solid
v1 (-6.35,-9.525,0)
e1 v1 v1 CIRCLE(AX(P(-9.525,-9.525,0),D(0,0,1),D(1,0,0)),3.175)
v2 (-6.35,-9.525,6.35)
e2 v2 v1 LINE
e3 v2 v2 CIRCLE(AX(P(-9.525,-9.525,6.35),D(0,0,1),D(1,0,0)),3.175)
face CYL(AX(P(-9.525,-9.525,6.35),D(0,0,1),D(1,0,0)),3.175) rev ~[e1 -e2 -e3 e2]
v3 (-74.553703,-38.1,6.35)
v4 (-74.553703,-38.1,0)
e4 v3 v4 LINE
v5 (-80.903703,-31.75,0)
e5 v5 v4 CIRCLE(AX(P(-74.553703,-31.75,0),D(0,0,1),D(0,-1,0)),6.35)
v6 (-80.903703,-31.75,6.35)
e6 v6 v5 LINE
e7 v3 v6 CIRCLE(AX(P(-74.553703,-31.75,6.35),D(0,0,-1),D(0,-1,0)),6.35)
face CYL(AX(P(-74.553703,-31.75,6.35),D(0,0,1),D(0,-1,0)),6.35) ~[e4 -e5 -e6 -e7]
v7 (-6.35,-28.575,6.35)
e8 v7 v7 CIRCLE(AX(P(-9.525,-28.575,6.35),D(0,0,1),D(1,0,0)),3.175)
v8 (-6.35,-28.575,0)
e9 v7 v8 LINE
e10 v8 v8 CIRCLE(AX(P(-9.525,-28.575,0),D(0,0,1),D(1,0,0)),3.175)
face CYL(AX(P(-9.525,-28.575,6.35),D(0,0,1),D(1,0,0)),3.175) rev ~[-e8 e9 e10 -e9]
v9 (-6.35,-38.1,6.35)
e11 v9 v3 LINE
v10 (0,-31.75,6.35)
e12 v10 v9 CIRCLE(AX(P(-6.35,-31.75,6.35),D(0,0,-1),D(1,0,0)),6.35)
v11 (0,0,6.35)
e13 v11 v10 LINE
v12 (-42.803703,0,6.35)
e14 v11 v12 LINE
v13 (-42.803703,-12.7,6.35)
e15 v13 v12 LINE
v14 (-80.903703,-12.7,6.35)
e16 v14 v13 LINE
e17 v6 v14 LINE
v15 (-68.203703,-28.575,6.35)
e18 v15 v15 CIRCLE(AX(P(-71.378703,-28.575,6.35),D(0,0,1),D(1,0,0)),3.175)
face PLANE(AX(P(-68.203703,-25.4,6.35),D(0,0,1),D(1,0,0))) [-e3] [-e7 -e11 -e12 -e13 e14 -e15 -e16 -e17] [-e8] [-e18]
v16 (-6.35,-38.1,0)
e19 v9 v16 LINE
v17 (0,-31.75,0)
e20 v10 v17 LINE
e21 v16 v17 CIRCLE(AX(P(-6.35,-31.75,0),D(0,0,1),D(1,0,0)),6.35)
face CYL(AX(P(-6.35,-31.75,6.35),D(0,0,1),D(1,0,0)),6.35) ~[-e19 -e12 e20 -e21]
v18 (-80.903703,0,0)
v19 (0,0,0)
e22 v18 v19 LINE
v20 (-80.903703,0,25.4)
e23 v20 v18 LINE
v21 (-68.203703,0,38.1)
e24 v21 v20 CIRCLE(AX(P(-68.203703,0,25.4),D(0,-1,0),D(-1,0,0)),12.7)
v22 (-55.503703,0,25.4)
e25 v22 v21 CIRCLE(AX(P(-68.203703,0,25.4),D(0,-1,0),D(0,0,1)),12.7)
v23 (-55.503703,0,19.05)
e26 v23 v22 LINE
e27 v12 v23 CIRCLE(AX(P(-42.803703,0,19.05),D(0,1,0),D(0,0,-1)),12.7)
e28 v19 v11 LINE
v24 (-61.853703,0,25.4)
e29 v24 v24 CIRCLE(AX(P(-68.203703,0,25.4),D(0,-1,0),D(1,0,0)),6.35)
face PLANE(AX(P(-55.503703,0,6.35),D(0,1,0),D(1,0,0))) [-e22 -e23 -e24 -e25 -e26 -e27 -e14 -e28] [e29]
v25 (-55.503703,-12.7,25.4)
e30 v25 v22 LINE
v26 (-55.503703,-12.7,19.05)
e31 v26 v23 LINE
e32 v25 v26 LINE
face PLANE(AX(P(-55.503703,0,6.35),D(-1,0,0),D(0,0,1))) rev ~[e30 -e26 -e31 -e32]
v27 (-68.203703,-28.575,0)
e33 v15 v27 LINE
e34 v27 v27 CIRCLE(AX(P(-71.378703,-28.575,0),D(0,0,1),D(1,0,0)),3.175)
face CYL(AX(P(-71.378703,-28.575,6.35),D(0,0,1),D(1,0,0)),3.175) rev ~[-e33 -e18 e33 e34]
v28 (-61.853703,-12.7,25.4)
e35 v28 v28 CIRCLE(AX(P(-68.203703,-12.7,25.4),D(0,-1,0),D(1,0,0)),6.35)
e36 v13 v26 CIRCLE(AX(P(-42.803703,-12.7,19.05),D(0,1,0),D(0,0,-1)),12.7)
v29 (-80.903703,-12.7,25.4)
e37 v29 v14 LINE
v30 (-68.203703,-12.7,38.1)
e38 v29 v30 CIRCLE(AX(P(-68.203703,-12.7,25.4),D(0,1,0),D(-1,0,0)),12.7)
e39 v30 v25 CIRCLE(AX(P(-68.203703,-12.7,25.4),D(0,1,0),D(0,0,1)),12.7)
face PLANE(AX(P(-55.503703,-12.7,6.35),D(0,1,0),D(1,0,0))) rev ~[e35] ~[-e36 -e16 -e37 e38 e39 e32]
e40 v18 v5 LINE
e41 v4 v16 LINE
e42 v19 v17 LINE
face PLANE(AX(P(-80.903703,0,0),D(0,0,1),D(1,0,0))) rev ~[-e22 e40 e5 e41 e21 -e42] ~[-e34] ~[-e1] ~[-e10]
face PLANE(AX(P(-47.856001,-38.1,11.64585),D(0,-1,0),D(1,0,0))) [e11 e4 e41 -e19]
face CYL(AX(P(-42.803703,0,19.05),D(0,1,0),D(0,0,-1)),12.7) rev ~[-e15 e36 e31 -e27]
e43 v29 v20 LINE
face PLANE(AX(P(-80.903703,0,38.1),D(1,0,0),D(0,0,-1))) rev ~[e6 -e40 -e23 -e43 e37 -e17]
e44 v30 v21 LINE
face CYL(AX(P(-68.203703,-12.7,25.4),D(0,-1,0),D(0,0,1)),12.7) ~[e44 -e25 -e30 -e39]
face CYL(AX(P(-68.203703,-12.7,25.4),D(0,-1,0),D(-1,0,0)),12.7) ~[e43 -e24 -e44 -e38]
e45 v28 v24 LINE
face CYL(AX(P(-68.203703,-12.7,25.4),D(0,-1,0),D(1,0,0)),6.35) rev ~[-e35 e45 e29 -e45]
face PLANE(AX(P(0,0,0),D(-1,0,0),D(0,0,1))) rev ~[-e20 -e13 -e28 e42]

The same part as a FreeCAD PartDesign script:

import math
import FreeCAD as App
import Part
import Sketcher
Q = App.Units.Quantity

doc = App.newDocument("Part")
body = doc.addObject("PartDesign::Body", "Body")

# Sketch on XZ plane
sketch1 = body.newObject("Sketcher::SketchObject", "Sketch")
sketch1.AttachmentSupport = (doc.getObject("XZ_Plane"), [""])
sketch1.MapMode = "FlatFace"
sketch1.addGeometry(Part.LineSegment(App.Vector(-81, 0, 0), App.Vector(0, 0, 0)), False)
sketch1.addGeometry(Part.LineSegment(App.Vector(0, 0, 0), App.Vector(0, 6, 0)), False)
sketch1.addGeometry(Part.LineSegment(App.Vector(0, 6, 0), App.Vector(-56, 6, 0)), False)
sketch1.addGeometry(Part.LineSegment(App.Vector(-56, 6, 0), App.Vector(-56, 38, 0)), False)
sketch1.addGeometry(Part.LineSegment(App.Vector(-56, 38, 0), App.Vector(-81, 38, 0)), False)
sketch1.addGeometry(Part.LineSegment(App.Vector(-81, 38, 0), App.Vector(-81, 0, 0)), False)
sketch1.addConstraint(Sketcher.Constraint("Coincident", 0, 2, 1, 1))
sketch1.addConstraint(Sketcher.Constraint("Coincident", 1, 2, 2, 1))
sketch1.addConstraint(Sketcher.Constraint("Coincident", 2, 2, 3, 1))
sketch1.addConstraint(Sketcher.Constraint("Coincident", 3, 2, 4, 1))
sketch1.addConstraint(Sketcher.Constraint("Coincident", 4, 2, 5, 1))
sketch1.addConstraint(Sketcher.Constraint("Coincident", 5, 2, 0, 1))
sketch1.addConstraint(Sketcher.Constraint("Horizontal", 0))
sketch1.addConstraint(Sketcher.Constraint("Vertical", 1))
sketch1.addConstraint(Sketcher.Constraint("Horizontal", 2))
sketch1.addConstraint(Sketcher.Constraint("Vertical", 3))
sketch1.addConstraint(Sketcher.Constraint("Horizontal", 4))
sketch1.addConstraint(Sketcher.Constraint("Vertical", 5))
sketch1.addConstraint(Sketcher.Constraint("Coincident", 0, 2, -1, 1))
sketch1.addConstraint(Sketcher.Constraint("DistanceX", 4, 2, 4, 1, Q("1 in")))
sketch1.addConstraint(Sketcher.Constraint("DistanceY", 5, 2, 5, 1, Q("1.5 in")))
sketch1.addConstraint(Sketcher.Constraint("DistanceY", 1, 1, 1, 2, Q("0.25 in")))
sketch1.addConstraint(Sketcher.Constraint("DistanceX", 0, 1, 0, 2, 80.903703))
pad1 = body.newObject("PartDesign::Pad", "Pad")
pad1.Profile = sketch1
pad1.Length = Q("1.5 in")

# Sketch on XY plane
sketch2 = body.newObject("Sketcher::SketchObject", "Sketch001")
sketch2.AttachmentSupport = (doc.getObject("XY_Plane"), [""])
sketch2.MapMode = "FlatFace"
sketch2.AttachmentOffset = App.Placement(App.Vector(0, 0, 1.5 * 25.4), App.Rotation())
sketch2.addGeometry(Part.LineSegment(App.Vector(-81, -13, 0), App.Vector(-81, -38, 0)), False)
sketch2.addGeometry(Part.LineSegment(App.Vector(-81, -38, 0), App.Vector(-56, -38, 0)), False)
sketch2.addGeometry(Part.LineSegment(App.Vector(-56, -38, 0), App.Vector(-56, -13, 0)), False)
sketch2.addGeometry(Part.LineSegment(App.Vector(-56, -13, 0), App.Vector(-81, -13, 0)), False)
sketch2.addConstraint(Sketcher.Constraint("Coincident", 0, 2, 1, 1))
sketch2.addConstraint(Sketcher.Constraint("Coincident", 1, 2, 2, 1))
sketch2.addConstraint(Sketcher.Constraint("Coincident", 2, 2, 3, 1))
sketch2.addConstraint(Sketcher.Constraint("Coincident", 3, 2, 0, 1))
sketch2.addConstraint(Sketcher.Constraint("Vertical", 0))
sketch2.addConstraint(Sketcher.Constraint("Horizontal", 1))
sketch2.addConstraint(Sketcher.Constraint("Vertical", 2))
sketch2.addConstraint(Sketcher.Constraint("Horizontal", 3))
sketch2.addConstraint(Sketcher.Constraint("Equal", 3, 0))
sketch2.addConstraint(Sketcher.Constraint("DistanceX", 1, 1, 1, 2, Q("1 in")))
sketch2.addConstraint(Sketcher.Constraint("DistanceY", 0, 2, -1, 1, Q("1.5 in")))
sketch2.addConstraint(Sketcher.Constraint("DistanceX", 0, 2, -1, 1, 80.903703))
pocket1 = body.newObject("PartDesign::Pocket", "Pocket")
pocket1.Profile = sketch2
pocket1.Length = Q("1.25 in")

# Sketch on XY plane
sketch3 = body.newObject("Sketcher::SketchObject", "Sketch002")
sketch3.AttachmentSupport = (doc.getObject("XY_Plane"), [""])
sketch3.MapMode = "FlatFace"
sketch3.AttachmentOffset = App.Placement(App.Vector(0, 0, 0.25 * 25.4), App.Rotation())
sketch3.addGeometry(Part.LineSegment(App.Vector(-56, 0, 0), App.Vector(-56, -13, 0)), False)
sketch3.addGeometry(Part.LineSegment(App.Vector(-56, -13, 0), App.Vector(-43, -13, 0)), False)
sketch3.addGeometry(Part.LineSegment(App.Vector(-43, -13, 0), App.Vector(-43, 0, 0)), False)
sketch3.addGeometry(Part.LineSegment(App.Vector(-43, 0, 0), App.Vector(-56, 0, 0)), False)
sketch3.addConstraint(Sketcher.Constraint("Coincident", 0, 2, 1, 1))
sketch3.addConstraint(Sketcher.Constraint("Coincident", 1, 2, 2, 1))
sketch3.addConstraint(Sketcher.Constraint("Coincident", 2, 2, 3, 1))
sketch3.addConstraint(Sketcher.Constraint("Coincident", 3, 2, 0, 1))
sketch3.addConstraint(Sketcher.Constraint("Vertical", 0))
sketch3.addConstraint(Sketcher.Constraint("Horizontal", 1))
sketch3.addConstraint(Sketcher.Constraint("Vertical", 2))
sketch3.addConstraint(Sketcher.Constraint("Horizontal", 3))
sketch3.addConstraint(Sketcher.Constraint("PointOnObject", 2, 2, -1))
sketch3.addConstraint(Sketcher.Constraint("Equal", 3, 0))
sketch3.addConstraint(Sketcher.Constraint("DistanceX", 1, 1, 1, 2, Q("0.5 in")))
sketch3.addConstraint(Sketcher.Constraint("DistanceX", 0, 2, -1, 1, 55.503703))
pad2 = body.newObject("PartDesign::Pad", "Pad001")
pad2.Profile = sketch3
pad2.Length = Q("0.5 in")

# Sketch on XZ plane
sketch4 = body.newObject("Sketcher::SketchObject", "Sketch003")
sketch4.AttachmentSupport = (doc.getObject("XZ_Plane"), [""])
sketch4.MapMode = "FlatFace"
sketch4.addGeometry(Part.ArcOfCircle(Part.Circle(App.Vector(-43, 19, 0), App.Vector(0, 0, 1), 13), math.radians(180), math.radians(270)), False)
sketch4.addGeometry(Part.LineSegment(App.Vector(-56, 19, 0), App.Vector(-43, 19, 0)), False)
sketch4.addGeometry(Part.LineSegment(App.Vector(-43, 19, 0), App.Vector(-43, 6, 0)), False)
sketch4.addConstraint(Sketcher.Constraint("Coincident", 0, 1, 1, 1))
sketch4.addConstraint(Sketcher.Constraint("Coincident", 1, 2, 2, 1))
sketch4.addConstraint(Sketcher.Constraint("Coincident", 2, 2, 0, 2))
sketch4.addConstraint(Sketcher.Constraint("Horizontal", 1))
sketch4.addConstraint(Sketcher.Constraint("Vertical", 2))
sketch4.addConstraint(Sketcher.Constraint("Coincident", 1, 2, 0, 3))
sketch4.addConstraint(Sketcher.Constraint("Radius", 0, Q("0.5 in")))
sketch4.addConstraint(Sketcher.Constraint("DistanceY", -1, 1, 0, 3, Q("0.75 in")))
sketch4.addConstraint(Sketcher.Constraint("DistanceX", 0, 3, -1, 1, 42.803703))
pocket2 = body.newObject("PartDesign::Pocket", "Pocket001")
pocket2.Profile = sketch4
pocket2.Length = Q("1 in")
pocket2.Reversed = True

# Sketch on XZ plane
sketch5 = body.newObject("Sketcher::SketchObject", "Sketch004")
sketch5.AttachmentSupport = (doc.getObject("XZ_Plane"), [""])
sketch5.MapMode = "FlatFace"
sketch5.AttachmentOffset = App.Placement(App.Vector(0, 0, 0.5 * 25.4), App.Rotation())
sketch5.addGeometry(Part.ArcOfCircle(Part.Circle(App.Vector(-68, 25, 0), App.Vector(0, 0, 1), 13), math.radians(90), math.radians(180)), False)
sketch5.addGeometry(Part.LineSegment(App.Vector(-68, 38, 0), App.Vector(-81, 38, 0)), False)
sketch5.addGeometry(Part.LineSegment(App.Vector(-81, 38, 0), App.Vector(-81, 25, 0)), False)
sketch5.addGeometry(Part.ArcOfCircle(Part.Circle(App.Vector(-68, 25, 0), App.Vector(0, 0, 1), 13), math.radians(0), math.radians(90)), False)
sketch5.addGeometry(Part.LineSegment(App.Vector(-56, 25, 0), App.Vector(-56, 38, 0)), False)
sketch5.addGeometry(Part.LineSegment(App.Vector(-56, 38, 0), App.Vector(-68, 38, 0)), False)
sketch5.addConstraint(Sketcher.Constraint("Tangent", 0, 1, 1, 1))
sketch5.addConstraint(Sketcher.Constraint("Coincident", 1, 2, 2, 1))
sketch5.addConstraint(Sketcher.Constraint("Tangent", 2, 2, 0, 2))
sketch5.addConstraint(Sketcher.Constraint("Tangent", 3, 1, 4, 1))
sketch5.addConstraint(Sketcher.Constraint("Coincident", 4, 2, 5, 1))
sketch5.addConstraint(Sketcher.Constraint("Tangent", 5, 2, 3, 2))
sketch5.addConstraint(Sketcher.Constraint("Horizontal", 1))
sketch5.addConstraint(Sketcher.Constraint("Vertical", 2))
sketch5.addConstraint(Sketcher.Constraint("Vertical", 4))
sketch5.addConstraint(Sketcher.Constraint("Horizontal", 5))
sketch5.addConstraint(Sketcher.Constraint("Coincident", 3, 3, 0, 3))
sketch5.addConstraint(Sketcher.Constraint("Equal", 0, 3))
sketch5.addConstraint(Sketcher.Constraint("Radius", 0, Q("0.5 in")))
sketch5.addConstraint(Sketcher.Constraint("DistanceY", -1, 1, 0, 3, Q("1 in")))
sketch5.addConstraint(Sketcher.Constraint("DistanceX", 0, 3, -1, 1, 68.203703))
pocket3 = body.newObject("PartDesign::Pocket", "Pocket002")
pocket3.Profile = sketch5
pocket3.Length = Q("1 in")

# Sketch on XZ plane
sketch6 = body.newObject("Sketcher::SketchObject", "Sketch005")
sketch6.AttachmentSupport = (doc.getObject("XZ_Plane"), [""])
sketch6.MapMode = "FlatFace"
sketch6.AttachmentOffset = App.Placement(App.Vector(0, 0, 0.5 * 25.4), App.Rotation())
sketch6.addGeometry(Part.Circle(App.Vector(-68, 25, 0), App.Vector(0, 0, 1), 6), False)
sketch6.addConstraint(Sketcher.Constraint("Diameter", 0, Q("0.5 in")))
sketch6.addConstraint(Sketcher.Constraint("DistanceY", -1, 1, 0, 3, Q("1 in")))
sketch6.addConstraint(Sketcher.Constraint("DistanceX", 0, 3, -1, 1, 68.203703))
pocket4 = body.newObject("PartDesign::Pocket", "Pocket003")
pocket4.Profile = sketch6
pocket4.Length = Q("1 in")

# Sketch on XY plane
sketch7 = body.newObject("Sketcher::SketchObject", "Sketch006")
sketch7.AttachmentSupport = (doc.getObject("XY_Plane"), [""])
sketch7.MapMode = "FlatFace"
sketch7.AttachmentOffset = App.Placement(App.Vector(0, 0, 0.25 * 25.4), App.Rotation())
sketch7.addGeometry(Part.Circle(App.Vector(-9.5, -9.5, 0), App.Vector(0, 0, 1), 3.2), False)
sketch7.addGeometry(Part.Circle(App.Vector(-9.5, -28.6, 0), App.Vector(0, 0, 1), 3.2), False)
sketch7.addGeometry(Part.Circle(App.Vector(-71.4, -28.6, 0), App.Vector(0, 0, 1), 3.2), False)
sketch7.addConstraint(Sketcher.Constraint("Equal", 0, 1))
sketch7.addConstraint(Sketcher.Constraint("Equal", 1, 2))
sketch7.addConstraint(Sketcher.Constraint("Horizontal", 1, 3, 2, 3))
sketch7.addConstraint(Sketcher.Constraint("Vertical", 0, 3, 1, 3))
sketch7.addConstraint(Sketcher.Constraint("Diameter", 0, Q("0.25 in")))
sketch7.addConstraint(Sketcher.Constraint("DistanceY", 1, 3, 0, 3, Q("0.75 in")))
sketch7.addConstraint(Sketcher.Constraint("DistanceX", 0, 3, -1, 1, Q("0.375 in")))
sketch7.addConstraint(Sketcher.Constraint("DistanceY", 0, 3, -1, 1, Q("0.375 in")))
sketch7.addConstraint(Sketcher.Constraint("DistanceX", 2, 3, -1, 1, 71.378703))
pocket5 = body.newObject("PartDesign::Pocket", "Pocket004")
pocket5.Profile = sketch7
pocket5.Length = Q("1 in")

# Sketch on XY plane
sketch8 = body.newObject("Sketcher::SketchObject", "Sketch007")
sketch8.AttachmentSupport = (doc.getObject("XY_Plane"), [""])
sketch8.MapMode = "FlatFace"
sketch8.AttachmentOffset = App.Placement(App.Vector(0, 0, 0.25 * 25.4), App.Rotation())
sketch8.addGeometry(Part.LineSegment(App.Vector(-81, -38, 0), App.Vector(-75, -38, 0)), False)
sketch8.addGeometry(Part.ArcOfCircle(Part.Circle(App.Vector(-75, -32, 0), App.Vector(0, 0, 1), 6), math.radians(180), math.radians(270)), False)
sketch8.addGeometry(Part.LineSegment(App.Vector(-81, -32, 0), App.Vector(-81, -38, 0)), False)
sketch8.addGeometry(Part.ArcOfCircle(Part.Circle(App.Vector(-6, -32, 0), App.Vector(0, 0, 1), 6), math.radians(-90), math.radians(0)), False)
sketch8.addGeometry(Part.LineSegment(App.Vector(-6, -38, 0), App.Vector(0, -38, 0)), False)
sketch8.addGeometry(Part.LineSegment(App.Vector(0, -38, 0), App.Vector(0, -32, 0)), False)
sketch8.addConstraint(Sketcher.Constraint("Tangent", 0, 2, 1, 2))
sketch8.addConstraint(Sketcher.Constraint("Tangent", 1, 1, 2, 1))
sketch8.addConstraint(Sketcher.Constraint("Coincident", 2, 2, 0, 1))
sketch8.addConstraint(Sketcher.Constraint("Tangent", 3, 1, 4, 1))
sketch8.addConstraint(Sketcher.Constraint("Coincident", 4, 2, 5, 1))
sketch8.addConstraint(Sketcher.Constraint("Tangent", 5, 2, 3, 2))
sketch8.addConstraint(Sketcher.Constraint("Horizontal", 0))
sketch8.addConstraint(Sketcher.Constraint("Vertical", 2))
sketch8.addConstraint(Sketcher.Constraint("Horizontal", 4))
sketch8.addConstraint(Sketcher.Constraint("Vertical", 5))
sketch8.addConstraint(Sketcher.Constraint("Equal", 1, 3))
sketch8.addConstraint(Sketcher.Constraint("PointOnObject", 4, 2, -2))
sketch8.addConstraint(Sketcher.Constraint("Horizontal", 1, 3, 3, 3))
sketch8.addConstraint(Sketcher.Constraint("Radius", 1, Q("0.25 in")))
sketch8.addConstraint(Sketcher.Constraint("DistanceY", 0, 2, -1, 1, Q("1.5 in")))
sketch8.addConstraint(Sketcher.Constraint("DistanceX", 1, 3, -1, 1, 74.553703))
pocket6 = body.newObject("PartDesign::Pocket", "Pocket005")
pocket6.Profile = sketch8
pocket6.Length = Q("1 in")

doc.recompute()
